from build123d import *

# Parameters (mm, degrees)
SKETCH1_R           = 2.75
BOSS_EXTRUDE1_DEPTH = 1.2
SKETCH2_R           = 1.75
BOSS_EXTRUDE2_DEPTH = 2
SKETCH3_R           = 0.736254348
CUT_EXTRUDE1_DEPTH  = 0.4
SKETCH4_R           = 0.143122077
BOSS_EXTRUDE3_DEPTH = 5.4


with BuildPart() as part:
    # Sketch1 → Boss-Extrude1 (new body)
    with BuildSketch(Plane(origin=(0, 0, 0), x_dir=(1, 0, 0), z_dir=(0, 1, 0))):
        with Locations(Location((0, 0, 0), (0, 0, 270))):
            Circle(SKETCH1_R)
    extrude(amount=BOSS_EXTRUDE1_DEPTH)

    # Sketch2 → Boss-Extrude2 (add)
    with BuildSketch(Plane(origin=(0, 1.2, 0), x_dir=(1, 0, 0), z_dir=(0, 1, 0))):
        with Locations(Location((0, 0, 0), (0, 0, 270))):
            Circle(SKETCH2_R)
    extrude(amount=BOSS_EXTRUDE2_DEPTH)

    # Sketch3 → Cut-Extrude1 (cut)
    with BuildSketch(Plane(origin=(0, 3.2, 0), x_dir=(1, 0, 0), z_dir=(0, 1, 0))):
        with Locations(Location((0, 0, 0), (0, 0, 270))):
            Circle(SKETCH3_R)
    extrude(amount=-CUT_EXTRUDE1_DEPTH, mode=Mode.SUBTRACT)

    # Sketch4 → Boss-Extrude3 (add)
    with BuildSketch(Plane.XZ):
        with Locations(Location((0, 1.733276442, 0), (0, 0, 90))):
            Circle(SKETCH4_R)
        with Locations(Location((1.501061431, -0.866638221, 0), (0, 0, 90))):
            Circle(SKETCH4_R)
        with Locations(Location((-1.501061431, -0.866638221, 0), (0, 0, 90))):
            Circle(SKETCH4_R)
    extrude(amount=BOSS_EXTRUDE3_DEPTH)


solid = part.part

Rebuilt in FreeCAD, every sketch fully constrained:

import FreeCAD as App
import Part
import Sketcher
from FreeCAD import Vector

doc = App.newDocument("Part")
body = doc.addObject("PartDesign::Body", "Body")

# Sketch on XZ plane
sketch1 = body.newObject("Sketcher::SketchObject", "Sketch")
sketch1.AttachmentSupport = (doc.getObject("XZ_Plane"), [""])
sketch1.MapMode = "FlatFace"
sketch1.addGeometry(Part.Circle(Vector(0, 0, 0), Vector(0, 0, 1), 2.75), False)
sketch1.addConstraint(Sketcher.Constraint("Coincident", 0, 3, -1, 1))
sketch1.addConstraint(Sketcher.Constraint("Diameter", 0, 5.5))
pad1 = body.newObject("PartDesign::Pad", "Pad")
pad1.Profile = sketch1
pad1.Length = 1.2
pad1.Reversed = True

# Sketch on XZ plane
sketch2 = body.newObject("Sketcher::SketchObject", "Sketch001")
sketch2.AttachmentSupport = (doc.getObject("XZ_Plane"), [""])
sketch2.MapMode = "FlatFace"
sketch2.AttachmentOffset = App.Placement(Vector(0, 0, -1.2), App.Rotation())
sketch2.addGeometry(Part.Circle(Vector(0, 0, 0), Vector(0, 0, 1), 1.75), False)
sketch2.addConstraint(Sketcher.Constraint("Coincident", 0, 3, -1, 1))
sketch2.addConstraint(Sketcher.Constraint("Diameter", 0, 3.5))
pad2 = body.newObject("PartDesign::Pad", "Pad001")
pad2.Profile = sketch2
pad2.Length = 2
pad2.Reversed = True

# Sketch on XZ plane
sketch3 = body.newObject("Sketcher::SketchObject", "Sketch002")
sketch3.AttachmentSupport = (doc.getObject("XZ_Plane"), [""])
sketch3.MapMode = "FlatFace"
sketch3.AttachmentOffset = App.Placement(Vector(0, 0, -3.2), App.Rotation())
sketch3.addGeometry(Part.Circle(Vector(0, 0, 0), Vector(0, 0, 1), 0.736254), False)
sketch3.addConstraint(Sketcher.Constraint("Coincident", 0, 3, -1, 1))
sketch3.addConstraint(Sketcher.Constraint("Diameter", 0, 1.472509))
pocket1 = body.newObject("PartDesign::Pocket", "Pocket")
pocket1.Profile = sketch3
pocket1.Length = 0.4
pocket1.Reversed = True

# Sketch on XZ plane
sketch4 = body.newObject("Sketcher::SketchObject", "Sketch003")
sketch4.AttachmentSupport = (doc.getObject("XZ_Plane"), [""])
sketch4.MapMode = "FlatFace"
sketch4.addGeometry(Part.Circle(Vector(0, 1.733276, 0), Vector(0, 0, 1), 0.143122), False)
sketch4.addGeometry(Part.Circle(Vector(1.501061, -0.866638, 0), Vector(0, 0, 1), 0.143122), False)
sketch4.addGeometry(Part.Circle(Vector(-1.501061, -0.866638, 0), Vector(0, 0, 1), 0.143122), False)
sketch4.addConstraint(Sketcher.Constraint("Equal", 0, 1))
sketch4.addConstraint(Sketcher.Constraint("Equal", 1, 2))
sketch4.addConstraint(Sketcher.Constraint("Symmetric", 1, 3, 2, 3, -2))
sketch4.addConstraint(Sketcher.Constraint("PointOnObject", 0, 3, -2))
sketch4.addConstraint(Sketcher.Constraint("Diameter", 0, 0.286244))
sketch4.addConstraint(Sketcher.Constraint("DistanceX", -1, 1, 1, 3, 1.501061))
sketch4.addConstraint(Sketcher.Constraint("DistanceY", 1, 3, -1, 1, 0.866638))
sketch4.addConstraint(Sketcher.Constraint("DistanceY", -1, 1, 0, 3, 1.733276))
pad3 = body.newObject("PartDesign::Pad", "Pad002")
pad3.Profile = sketch4
pad3.Length = 5.4

doc.recompute()
